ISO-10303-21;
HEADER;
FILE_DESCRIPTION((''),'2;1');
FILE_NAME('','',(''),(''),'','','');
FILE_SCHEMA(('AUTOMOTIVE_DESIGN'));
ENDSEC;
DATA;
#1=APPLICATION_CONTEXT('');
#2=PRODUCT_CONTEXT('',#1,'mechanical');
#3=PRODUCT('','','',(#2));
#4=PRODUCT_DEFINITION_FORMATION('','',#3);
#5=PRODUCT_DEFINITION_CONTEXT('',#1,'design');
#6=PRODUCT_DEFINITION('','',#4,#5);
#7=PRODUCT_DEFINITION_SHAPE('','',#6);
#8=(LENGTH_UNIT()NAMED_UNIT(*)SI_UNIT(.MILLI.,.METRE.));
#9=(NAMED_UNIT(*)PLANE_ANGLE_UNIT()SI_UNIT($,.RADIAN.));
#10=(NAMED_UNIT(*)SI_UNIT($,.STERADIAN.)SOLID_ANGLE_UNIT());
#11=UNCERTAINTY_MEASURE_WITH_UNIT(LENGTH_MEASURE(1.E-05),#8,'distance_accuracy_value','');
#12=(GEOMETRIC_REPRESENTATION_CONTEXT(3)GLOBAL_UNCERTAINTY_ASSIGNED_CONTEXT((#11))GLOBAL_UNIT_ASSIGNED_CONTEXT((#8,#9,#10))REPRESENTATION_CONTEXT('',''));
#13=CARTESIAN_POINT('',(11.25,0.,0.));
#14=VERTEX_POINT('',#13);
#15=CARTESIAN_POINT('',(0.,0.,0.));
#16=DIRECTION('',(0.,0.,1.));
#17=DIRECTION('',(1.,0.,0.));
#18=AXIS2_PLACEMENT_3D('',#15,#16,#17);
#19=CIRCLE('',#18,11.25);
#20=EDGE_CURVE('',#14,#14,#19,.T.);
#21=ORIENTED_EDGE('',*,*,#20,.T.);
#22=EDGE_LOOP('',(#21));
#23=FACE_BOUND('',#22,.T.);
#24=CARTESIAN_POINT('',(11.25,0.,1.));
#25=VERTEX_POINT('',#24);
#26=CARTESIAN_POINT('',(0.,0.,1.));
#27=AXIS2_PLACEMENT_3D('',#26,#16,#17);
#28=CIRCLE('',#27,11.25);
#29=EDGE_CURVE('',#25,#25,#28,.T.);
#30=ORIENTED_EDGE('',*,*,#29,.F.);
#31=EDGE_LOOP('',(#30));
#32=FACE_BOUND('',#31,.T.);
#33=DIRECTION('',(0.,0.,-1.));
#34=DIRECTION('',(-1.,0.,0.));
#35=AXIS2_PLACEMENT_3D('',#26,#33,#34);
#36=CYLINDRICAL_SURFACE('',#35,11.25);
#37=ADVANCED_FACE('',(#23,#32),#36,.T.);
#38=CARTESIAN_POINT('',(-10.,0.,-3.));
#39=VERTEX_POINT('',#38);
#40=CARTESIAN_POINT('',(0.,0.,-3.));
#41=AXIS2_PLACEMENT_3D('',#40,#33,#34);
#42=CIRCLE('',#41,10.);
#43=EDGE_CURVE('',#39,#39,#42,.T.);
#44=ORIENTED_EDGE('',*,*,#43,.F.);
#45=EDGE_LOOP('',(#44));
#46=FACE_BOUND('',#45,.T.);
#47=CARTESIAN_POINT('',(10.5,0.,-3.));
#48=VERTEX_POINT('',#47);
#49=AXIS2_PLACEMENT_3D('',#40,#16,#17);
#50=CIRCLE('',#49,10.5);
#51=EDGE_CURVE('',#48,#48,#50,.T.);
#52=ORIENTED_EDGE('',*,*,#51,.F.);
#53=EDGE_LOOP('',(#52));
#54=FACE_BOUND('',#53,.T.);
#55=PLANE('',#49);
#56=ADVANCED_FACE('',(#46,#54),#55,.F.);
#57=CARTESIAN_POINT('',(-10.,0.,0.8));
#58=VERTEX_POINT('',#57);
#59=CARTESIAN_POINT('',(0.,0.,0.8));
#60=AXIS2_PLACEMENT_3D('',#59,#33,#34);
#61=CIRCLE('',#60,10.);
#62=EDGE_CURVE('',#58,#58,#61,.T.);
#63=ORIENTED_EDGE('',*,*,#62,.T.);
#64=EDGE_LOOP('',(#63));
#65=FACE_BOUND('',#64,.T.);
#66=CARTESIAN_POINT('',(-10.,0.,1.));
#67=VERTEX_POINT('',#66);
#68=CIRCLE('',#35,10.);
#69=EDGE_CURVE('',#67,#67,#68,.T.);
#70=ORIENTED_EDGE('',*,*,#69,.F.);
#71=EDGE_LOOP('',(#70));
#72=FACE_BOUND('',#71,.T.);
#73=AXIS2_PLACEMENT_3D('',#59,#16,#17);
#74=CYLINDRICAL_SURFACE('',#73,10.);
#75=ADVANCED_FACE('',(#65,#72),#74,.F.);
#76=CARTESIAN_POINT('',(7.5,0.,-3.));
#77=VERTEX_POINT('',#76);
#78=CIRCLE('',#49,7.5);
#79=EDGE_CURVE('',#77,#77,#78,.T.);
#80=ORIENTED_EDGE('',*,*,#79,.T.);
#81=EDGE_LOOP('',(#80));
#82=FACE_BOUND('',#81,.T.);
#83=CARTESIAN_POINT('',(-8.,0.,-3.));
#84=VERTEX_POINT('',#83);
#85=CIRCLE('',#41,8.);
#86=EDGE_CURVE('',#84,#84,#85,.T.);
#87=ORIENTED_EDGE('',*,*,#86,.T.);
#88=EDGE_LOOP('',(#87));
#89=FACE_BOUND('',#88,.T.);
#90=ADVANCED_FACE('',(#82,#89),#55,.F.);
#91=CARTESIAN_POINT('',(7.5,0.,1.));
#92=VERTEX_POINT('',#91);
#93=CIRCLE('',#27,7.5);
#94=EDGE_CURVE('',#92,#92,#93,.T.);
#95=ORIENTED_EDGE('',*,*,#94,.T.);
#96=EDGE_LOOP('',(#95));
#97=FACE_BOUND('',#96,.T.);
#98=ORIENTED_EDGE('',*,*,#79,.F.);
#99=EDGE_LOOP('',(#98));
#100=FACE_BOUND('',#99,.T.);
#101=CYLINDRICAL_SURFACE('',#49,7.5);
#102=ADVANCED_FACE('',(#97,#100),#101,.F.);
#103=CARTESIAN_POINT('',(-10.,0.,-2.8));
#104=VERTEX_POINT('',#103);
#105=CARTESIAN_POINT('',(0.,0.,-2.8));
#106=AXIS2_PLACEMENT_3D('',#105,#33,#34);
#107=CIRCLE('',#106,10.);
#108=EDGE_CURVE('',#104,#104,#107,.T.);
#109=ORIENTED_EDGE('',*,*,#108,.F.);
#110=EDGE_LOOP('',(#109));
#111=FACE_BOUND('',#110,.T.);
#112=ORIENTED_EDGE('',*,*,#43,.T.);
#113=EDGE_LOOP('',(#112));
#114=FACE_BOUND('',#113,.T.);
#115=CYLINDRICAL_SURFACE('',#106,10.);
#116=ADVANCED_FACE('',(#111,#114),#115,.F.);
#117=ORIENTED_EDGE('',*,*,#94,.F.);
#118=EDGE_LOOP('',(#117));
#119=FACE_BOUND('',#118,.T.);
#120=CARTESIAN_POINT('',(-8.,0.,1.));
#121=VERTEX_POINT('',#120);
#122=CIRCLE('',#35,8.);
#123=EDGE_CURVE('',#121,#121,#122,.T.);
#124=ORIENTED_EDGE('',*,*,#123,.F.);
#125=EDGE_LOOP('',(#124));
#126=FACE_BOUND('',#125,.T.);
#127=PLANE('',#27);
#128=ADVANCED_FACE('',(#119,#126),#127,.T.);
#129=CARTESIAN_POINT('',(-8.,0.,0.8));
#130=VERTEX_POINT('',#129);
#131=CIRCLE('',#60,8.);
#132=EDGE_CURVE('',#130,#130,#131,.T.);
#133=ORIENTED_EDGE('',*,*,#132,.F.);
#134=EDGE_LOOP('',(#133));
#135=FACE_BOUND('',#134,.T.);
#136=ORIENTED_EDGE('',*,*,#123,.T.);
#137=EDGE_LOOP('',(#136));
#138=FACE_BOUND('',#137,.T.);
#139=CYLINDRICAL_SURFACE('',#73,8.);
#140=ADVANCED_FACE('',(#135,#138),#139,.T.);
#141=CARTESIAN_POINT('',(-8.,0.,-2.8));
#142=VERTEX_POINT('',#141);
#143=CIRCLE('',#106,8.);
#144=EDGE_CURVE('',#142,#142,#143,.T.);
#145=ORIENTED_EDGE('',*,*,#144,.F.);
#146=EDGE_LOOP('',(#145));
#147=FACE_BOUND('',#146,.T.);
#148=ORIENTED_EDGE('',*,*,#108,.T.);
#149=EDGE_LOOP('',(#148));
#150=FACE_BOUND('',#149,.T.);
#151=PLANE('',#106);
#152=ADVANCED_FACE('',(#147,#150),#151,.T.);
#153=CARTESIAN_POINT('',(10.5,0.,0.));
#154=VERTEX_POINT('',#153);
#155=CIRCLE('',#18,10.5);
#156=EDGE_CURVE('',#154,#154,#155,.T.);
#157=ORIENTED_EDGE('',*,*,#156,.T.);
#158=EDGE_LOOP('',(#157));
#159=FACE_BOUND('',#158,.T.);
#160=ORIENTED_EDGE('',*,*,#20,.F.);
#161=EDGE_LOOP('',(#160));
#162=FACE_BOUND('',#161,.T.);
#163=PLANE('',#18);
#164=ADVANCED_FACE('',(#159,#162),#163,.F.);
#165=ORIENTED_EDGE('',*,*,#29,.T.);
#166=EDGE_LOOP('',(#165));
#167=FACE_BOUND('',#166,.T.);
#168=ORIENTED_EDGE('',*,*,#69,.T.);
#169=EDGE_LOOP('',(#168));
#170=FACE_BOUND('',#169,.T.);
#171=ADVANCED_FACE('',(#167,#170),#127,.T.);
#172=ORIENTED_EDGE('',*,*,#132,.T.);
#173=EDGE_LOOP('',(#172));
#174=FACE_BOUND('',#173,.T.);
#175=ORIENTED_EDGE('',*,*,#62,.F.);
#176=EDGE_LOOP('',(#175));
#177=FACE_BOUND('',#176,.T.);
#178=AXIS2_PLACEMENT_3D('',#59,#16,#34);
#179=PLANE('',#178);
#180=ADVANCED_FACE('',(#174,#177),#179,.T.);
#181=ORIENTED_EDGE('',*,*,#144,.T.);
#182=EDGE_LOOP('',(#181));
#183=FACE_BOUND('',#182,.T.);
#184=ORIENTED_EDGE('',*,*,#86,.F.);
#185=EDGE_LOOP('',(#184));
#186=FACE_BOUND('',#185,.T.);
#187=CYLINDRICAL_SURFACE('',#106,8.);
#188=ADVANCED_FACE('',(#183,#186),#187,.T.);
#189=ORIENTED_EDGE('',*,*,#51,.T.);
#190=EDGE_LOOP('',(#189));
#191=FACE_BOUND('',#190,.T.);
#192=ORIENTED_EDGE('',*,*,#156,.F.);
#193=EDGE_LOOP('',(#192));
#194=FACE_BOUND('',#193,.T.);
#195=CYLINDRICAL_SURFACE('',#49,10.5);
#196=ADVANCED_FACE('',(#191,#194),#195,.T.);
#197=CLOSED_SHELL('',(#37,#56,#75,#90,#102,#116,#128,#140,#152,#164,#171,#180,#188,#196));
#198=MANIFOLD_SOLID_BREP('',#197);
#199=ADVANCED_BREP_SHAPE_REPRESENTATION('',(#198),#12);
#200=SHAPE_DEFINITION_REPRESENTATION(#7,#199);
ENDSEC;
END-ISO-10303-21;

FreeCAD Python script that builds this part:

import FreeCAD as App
import Part
import Sketcher
from FreeCAD import Vector

doc = App.newDocument("Part")
body = doc.addObject("PartDesign::Body", "Body")

sketch1 = body.newObject("Sketcher::SketchObject", "Sketch")
sketch1.AttachmentSupport = (doc.getObject("XY_Plane"), [""])
sketch1.MapMode = "FlatFace"
sketch1.addGeometry([
    Part.Circle(Vector(0, 0, 0), Vector(0, 0, 1), 11),
    Part.Circle(Vector(0, 0, 0), Vector(0, 0, 1), 10),
], False)
sketch1.addConstraint([
    Sketcher.Constraint("Coincident", 0, 3, -1, 1),
    Sketcher.Constraint("Coincident", 1, 3, -1, 1),
    Sketcher.Constraint("Diameter", 1, 21.0),
    Sketcher.Constraint("Diameter", 0, 22.5),
])
pad1 = body.newObject("PartDesign::Pad", "Pad")
pad1.Profile = sketch1
pad1.Length = 1

sketch2 = body.newObject("Sketcher::SketchObject", "Sketch001")
sketch2.AttachmentSupport = (doc.getObject("XY_Plane"), [""])
sketch2.MapMode = "FlatFace"
sketch2.AttachmentOffset = App.Placement(Vector(0, 0, -3), App.Rotation())
sketch2.addGeometry([
    Part.Circle(Vector(0, 0, 0), Vector(0, 0, 1), 10),
    Part.Circle(Vector(0, 0, 0), Vector(0, 0, 1), 8),
], False)
sketch2.addConstraint([
    Sketcher.Constraint("Coincident", 0, 3, -1, 1),
    Sketcher.Constraint("Coincident", 1, 3, -1, 1),
    Sketcher.Constraint("Diameter", 0, 21.0),
    Sketcher.Constraint("Diameter", 1, 15.0),
])
pad2 = body.newObject("PartDesign::Pad", "Pad001")
pad2.Profile = sketch2
pad2.Length = 4

sketch3 = body.newObject("Sketcher::SketchObject", "Sketch002")
sketch3.AttachmentSupport = (doc.getObject("XY_Plane"), [""])
sketch3.MapMode = "FlatFace"
sketch3.AttachmentOffset = App.Placement(Vector(0, 0, -3), App.Rotation())
sketch3.addGeometry([
    Part.Circle(Vector(0, 0, 0), Vector(0, 0, 1), 10),
    Part.Circle(Vector(0, 0, 0), Vector(0, 0, 1), 8),
], False)
sketch3.addConstraint([
    Sketcher.Constraint("Coincident", 0, 3, -1, 1),
    Sketcher.Constraint("Coincident", 1, 3, -1, 1),
    Sketcher.Constraint("Diameter", 0, 20.0),
    Sketcher.Constraint("Diameter", 1, 16.0),
])
pocket1 = body.newObject("PartDesign::Pocket", "Pocket")
pocket1.Profile = sketch3
pocket1.Length = 0.2
pocket1.Reversed = True
doc.recompute()

datumplane = body.newObject("PartDesign::Plane", "DatumPlane")
datumplane.AttachmentSupport = (doc.getObject("XY_Plane"), [""])
datumplane.MapMode = "FlatFace"
datumplane.AttachmentOffset = App.Placement(Vector(0, 0, -1), App.Rotation())
mirrored = body.newObject("PartDesign::Mirrored", "Mirrored")
mirrored.Originals = [pocket1]
mirrored.MirrorPlane = (datumplane, [""])
body.Tip = mirrored

doc.recompute()
